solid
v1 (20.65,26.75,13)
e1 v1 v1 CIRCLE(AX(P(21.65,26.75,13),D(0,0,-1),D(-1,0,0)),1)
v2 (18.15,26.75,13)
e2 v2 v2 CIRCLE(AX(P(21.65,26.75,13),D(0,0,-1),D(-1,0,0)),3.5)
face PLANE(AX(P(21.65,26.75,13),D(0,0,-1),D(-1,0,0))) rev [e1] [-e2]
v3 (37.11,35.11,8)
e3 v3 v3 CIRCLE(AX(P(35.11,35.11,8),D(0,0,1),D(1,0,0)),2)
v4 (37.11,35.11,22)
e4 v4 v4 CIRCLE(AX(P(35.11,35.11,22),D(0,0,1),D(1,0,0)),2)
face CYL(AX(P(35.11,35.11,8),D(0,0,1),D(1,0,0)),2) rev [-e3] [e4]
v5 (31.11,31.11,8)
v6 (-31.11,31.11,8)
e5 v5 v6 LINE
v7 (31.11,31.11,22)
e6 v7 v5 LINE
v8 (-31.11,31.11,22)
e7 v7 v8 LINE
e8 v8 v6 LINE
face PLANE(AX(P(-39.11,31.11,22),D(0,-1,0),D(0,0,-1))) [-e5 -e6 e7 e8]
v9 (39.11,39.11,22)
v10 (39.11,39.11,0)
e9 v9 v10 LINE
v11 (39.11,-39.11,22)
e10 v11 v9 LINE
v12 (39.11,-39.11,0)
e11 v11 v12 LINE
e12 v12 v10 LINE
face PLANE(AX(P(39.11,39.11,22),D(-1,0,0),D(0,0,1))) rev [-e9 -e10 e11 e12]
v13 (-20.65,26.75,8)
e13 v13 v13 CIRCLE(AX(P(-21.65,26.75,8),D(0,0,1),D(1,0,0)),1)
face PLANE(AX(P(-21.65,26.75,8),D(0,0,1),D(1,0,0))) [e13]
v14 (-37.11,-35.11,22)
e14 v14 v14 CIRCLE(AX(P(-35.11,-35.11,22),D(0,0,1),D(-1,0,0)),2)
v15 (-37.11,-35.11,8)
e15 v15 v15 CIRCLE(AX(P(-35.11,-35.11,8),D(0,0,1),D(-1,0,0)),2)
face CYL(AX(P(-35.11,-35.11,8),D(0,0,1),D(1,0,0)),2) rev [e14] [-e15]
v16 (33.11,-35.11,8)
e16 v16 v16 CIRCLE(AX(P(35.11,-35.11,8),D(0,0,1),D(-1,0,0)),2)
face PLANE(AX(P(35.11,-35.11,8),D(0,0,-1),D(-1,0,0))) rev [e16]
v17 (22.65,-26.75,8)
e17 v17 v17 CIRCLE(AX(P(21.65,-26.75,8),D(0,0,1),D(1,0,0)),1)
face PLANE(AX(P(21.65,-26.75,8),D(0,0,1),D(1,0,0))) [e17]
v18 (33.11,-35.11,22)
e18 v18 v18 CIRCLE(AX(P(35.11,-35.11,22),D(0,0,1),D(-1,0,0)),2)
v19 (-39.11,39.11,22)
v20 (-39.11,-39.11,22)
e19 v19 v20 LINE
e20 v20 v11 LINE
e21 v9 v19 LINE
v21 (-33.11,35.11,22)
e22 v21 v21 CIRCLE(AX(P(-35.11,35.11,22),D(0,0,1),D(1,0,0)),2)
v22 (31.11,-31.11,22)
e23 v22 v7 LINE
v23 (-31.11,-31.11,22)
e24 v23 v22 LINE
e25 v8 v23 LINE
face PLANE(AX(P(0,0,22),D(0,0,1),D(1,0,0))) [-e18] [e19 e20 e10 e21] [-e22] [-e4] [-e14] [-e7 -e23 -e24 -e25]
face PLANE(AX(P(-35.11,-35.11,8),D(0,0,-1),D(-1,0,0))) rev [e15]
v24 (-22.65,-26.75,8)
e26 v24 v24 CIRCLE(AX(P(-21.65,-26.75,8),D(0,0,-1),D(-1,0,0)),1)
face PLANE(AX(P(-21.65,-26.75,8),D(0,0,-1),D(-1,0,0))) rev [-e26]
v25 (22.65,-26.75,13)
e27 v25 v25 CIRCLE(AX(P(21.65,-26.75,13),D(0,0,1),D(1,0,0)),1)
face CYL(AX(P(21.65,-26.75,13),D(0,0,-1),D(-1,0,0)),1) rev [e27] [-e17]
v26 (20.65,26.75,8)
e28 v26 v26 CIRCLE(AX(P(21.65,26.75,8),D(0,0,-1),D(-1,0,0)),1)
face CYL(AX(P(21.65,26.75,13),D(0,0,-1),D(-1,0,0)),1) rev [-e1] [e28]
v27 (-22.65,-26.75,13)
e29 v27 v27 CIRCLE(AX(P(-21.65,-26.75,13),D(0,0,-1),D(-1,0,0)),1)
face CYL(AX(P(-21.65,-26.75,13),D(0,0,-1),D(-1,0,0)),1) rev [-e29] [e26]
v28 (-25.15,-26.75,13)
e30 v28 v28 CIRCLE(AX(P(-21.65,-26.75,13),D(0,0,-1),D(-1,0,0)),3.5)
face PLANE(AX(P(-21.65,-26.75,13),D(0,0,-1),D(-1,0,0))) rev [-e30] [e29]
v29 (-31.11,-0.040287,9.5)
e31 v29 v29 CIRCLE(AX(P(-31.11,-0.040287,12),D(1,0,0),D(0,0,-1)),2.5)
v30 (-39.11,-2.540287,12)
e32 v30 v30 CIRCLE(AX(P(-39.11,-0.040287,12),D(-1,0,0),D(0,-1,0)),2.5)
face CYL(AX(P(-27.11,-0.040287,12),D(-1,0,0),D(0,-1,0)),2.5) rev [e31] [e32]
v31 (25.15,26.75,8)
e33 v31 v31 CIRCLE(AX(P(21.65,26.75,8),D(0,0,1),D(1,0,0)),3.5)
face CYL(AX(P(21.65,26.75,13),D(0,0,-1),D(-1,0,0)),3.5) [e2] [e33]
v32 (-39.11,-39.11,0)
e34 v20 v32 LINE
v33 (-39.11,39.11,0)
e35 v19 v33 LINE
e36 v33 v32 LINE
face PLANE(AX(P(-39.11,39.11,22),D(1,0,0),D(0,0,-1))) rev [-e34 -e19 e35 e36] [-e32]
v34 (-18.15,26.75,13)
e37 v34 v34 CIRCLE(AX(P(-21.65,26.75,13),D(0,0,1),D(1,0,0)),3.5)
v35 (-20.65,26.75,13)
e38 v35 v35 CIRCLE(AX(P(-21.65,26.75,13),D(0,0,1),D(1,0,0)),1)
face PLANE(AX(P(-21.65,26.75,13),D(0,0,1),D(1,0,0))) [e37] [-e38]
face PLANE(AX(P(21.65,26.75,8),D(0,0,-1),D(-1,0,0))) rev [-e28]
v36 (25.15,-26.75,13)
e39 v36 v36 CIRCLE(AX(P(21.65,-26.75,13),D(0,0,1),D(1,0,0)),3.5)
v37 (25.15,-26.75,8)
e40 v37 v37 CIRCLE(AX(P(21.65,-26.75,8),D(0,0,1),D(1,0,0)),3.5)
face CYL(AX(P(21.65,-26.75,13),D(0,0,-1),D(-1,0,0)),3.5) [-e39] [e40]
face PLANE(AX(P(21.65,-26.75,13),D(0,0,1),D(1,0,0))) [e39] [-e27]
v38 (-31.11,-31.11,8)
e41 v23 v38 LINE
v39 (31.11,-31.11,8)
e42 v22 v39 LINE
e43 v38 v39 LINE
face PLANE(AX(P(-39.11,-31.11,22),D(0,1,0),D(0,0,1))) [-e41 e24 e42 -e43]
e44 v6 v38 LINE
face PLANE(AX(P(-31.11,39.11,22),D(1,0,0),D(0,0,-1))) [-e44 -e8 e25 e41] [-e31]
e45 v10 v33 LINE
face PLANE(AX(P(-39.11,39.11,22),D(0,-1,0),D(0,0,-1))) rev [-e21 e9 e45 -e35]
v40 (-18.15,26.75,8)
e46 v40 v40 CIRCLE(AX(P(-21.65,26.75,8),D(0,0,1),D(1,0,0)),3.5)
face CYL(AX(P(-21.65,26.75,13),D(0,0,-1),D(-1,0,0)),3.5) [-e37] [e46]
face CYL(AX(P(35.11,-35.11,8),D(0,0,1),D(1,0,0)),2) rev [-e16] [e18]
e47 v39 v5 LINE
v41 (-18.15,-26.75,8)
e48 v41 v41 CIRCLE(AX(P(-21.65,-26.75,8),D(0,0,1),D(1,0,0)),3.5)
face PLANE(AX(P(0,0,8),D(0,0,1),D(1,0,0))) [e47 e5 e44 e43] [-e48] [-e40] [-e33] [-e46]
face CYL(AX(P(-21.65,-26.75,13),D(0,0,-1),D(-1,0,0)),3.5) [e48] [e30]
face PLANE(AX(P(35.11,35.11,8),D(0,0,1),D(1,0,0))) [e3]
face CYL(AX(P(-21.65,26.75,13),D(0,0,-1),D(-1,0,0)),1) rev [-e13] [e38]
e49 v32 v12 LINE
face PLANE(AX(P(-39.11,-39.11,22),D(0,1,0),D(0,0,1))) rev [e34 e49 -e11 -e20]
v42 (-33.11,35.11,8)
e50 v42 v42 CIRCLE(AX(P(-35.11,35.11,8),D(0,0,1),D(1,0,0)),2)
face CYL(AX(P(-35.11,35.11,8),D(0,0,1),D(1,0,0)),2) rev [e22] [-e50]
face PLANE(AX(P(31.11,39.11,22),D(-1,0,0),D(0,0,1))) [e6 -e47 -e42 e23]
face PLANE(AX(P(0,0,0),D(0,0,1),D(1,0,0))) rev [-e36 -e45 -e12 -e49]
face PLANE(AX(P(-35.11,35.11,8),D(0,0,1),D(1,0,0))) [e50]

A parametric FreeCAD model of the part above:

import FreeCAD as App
import Part
import Sketcher
Q = App.Units.Quantity


def faces_at(feature, points):
    """Names of the faces that lie closest to the given points."""
    faces = feature.Shape.Faces
    near = lambda p: min(range(len(faces)), key=lambda i: faces[i].distToShape(Part.Vertex(*p))[0])
    return sorted({f"Face{near(p) + 1}" for p in points})


def add_polygon(sketch, points):
    """Adds a closed chain of lines whose ends are joined by coincident constraints."""
    first, n = sketch.GeometryCount, len(points)
    for a, b in zip(points, points[1:] + points[:1]):
        sketch.addGeometry(Part.LineSegment(App.Vector(*a, 0), App.Vector(*b, 0)), False)
    for i in range(n):
        sketch.addConstraint(Sketcher.Constraint("Coincident", first + i, 2, first + (i + 1) % n, 1))

doc = App.newDocument("Part")
body = doc.addObject("PartDesign::Body", "Body")

# Sketch on XY plane
sketch1 = doc.addObject("Sketcher::SketchObject", "Sketch")
body.addObject(sketch1)
sketch1.AttachmentSupport = (doc.XY_Plane, [""])
sketch1.MapMode = "FlatFace"
add_polygon(sketch1, [(-39, 39), (-39, -39), (39, -39), (39, 39)])  # lines 0-3
sketch1.addConstraint(Sketcher.Constraint("Vertical", 0))
sketch1.addConstraint(Sketcher.Constraint("Horizontal", 1))
sketch1.addConstraint(Sketcher.Constraint("Vertical", 2))
sketch1.addConstraint(Sketcher.Constraint("Horizontal", 3))
sketch1.addConstraint(Sketcher.Constraint("Symmetric", 0, 2, 2, 2, -1, 1))
sketch1.addConstraint(Sketcher.Constraint("Equal", 3, 0))
sketch1.addConstraint(Sketcher.Constraint("DistanceX", 1, 1, 1, 2, Q("78.22 mm")))
pad1 = doc.addObject("PartDesign::Pad", "Pad")
body.addObject(pad1)
pad1.Profile = sketch1
pad1.Length = 22
doc.recompute()

thickness = doc.addObject("PartDesign::Thickness", "Thickness")
body.addObject(thickness)
thickness.Base = (pad1, faces_at(pad1, [(0, 0, 22)]))
thickness.Value = 8
thickness.Reversed = True
thickness.Join = "Intersection"

# Sketch on XY plane
sketch2 = doc.addObject("Sketcher::SketchObject", "Sketch001")
body.addObject(sketch2)
sketch2.AttachmentSupport = (doc.XY_Plane, [""])
sketch2.MapMode = "FlatFace"
sketch2.AttachmentOffset = App.Placement(App.Vector(0, 0, 22), App.Rotation())
sketch2.addGeometry(Part.Circle(App.Vector(-35.1, 35.1, 0), App.Vector(0, 0, 1), 2), False)
sketch2.addGeometry(Part.Circle(App.Vector(35.1, -35.1, 0), App.Vector(0, 0, 1), 2), False)
sketch2.addGeometry(Part.Circle(App.Vector(35.1, 35.1, 0), App.Vector(0, 0, 1), 2), False)
sketch2.addGeometry(Part.Circle(App.Vector(-35.1, -35.1, 0), App.Vector(0, 0, 1), 2), False)
sketch2.addConstraint(Sketcher.Constraint("Equal", 0, 1))
sketch2.addConstraint(Sketcher.Constraint("Equal", 1, 2))
sketch2.addConstraint(Sketcher.Constraint("Equal", 2, 3))
sketch2.addConstraint(Sketcher.Constraint("Symmetric", 0, 3, 1, 3, -1, 1))
sketch2.addConstraint(Sketcher.Constraint("Symmetric", 2, 3, 3, 3, -1, 1))
sketch2.addConstraint(Sketcher.Constraint("Symmetric", 0, 3, 2, 3, -2))
sketch2.addConstraint(Sketcher.Constraint("Diameter", 0, Q("4 mm")))
sketch2.addConstraint(Sketcher.Constraint("DistanceX", 0, 3, -1, 1, Q("35.11 mm")))
sketch2.addConstraint(Sketcher.Constraint("DistanceY", -1, 1, 0, 3, Q("35.11 mm")))
pocket1 = doc.addObject("PartDesign::Pocket", "Pocket")
body.addObject(pocket1)
pocket1.Profile = sketch2
pocket1.Length = 14

# Sketch on XY plane
sketch3 = doc.addObject("Sketcher::SketchObject", "Sketch002")
body.addObject(sketch3)
sketch3.AttachmentSupport = (doc.XY_Plane, [""])
sketch3.MapMode = "FlatFace"
sketch3.AttachmentOffset = App.Placement(App.Vector(0, 0, 8), App.Rotation())
sketch3.addGeometry(Part.Circle(App.Vector(-21.6, 26.8, 0), App.Vector(0, 0, 1), 3.5), False)
sketch3.addGeometry(Part.Circle(App.Vector(-21.6, -26.8, 0), App.Vector(0, 0, 1), 3.5), False)
sketch3.addGeometry(Part.Circle(App.Vector(21.6, -26.8, 0), App.Vector(0, 0, 1), 3.5), False)
sketch3.addGeometry(Part.Circle(App.Vector(21.6, 26.8, 0), App.Vector(0, 0, 1), 3.5), False)
sketch3.addConstraint(Sketcher.Constraint("Equal", 0, 1))
sketch3.addConstraint(Sketcher.Constraint("Equal", 1, 2))
sketch3.addConstraint(Sketcher.Constraint("Equal", 2, 3))
sketch3.addConstraint(Sketcher.Constraint("Symmetric", 0, 3, 2, 3, -1, 1))
sketch3.addConstraint(Sketcher.Constraint("Symmetric", 1, 3, 3, 3, -1, 1))
sketch3.addConstraint(Sketcher.Constraint("Symmetric", 1, 3, 2, 3, -2))
sketch3.addConstraint(Sketcher.Constraint("Diameter", 0, Q("7 mm")))
sketch3.addConstraint(Sketcher.Constraint("DistanceY", 1, 3, 0, 3, Q("53.5 mm")))
sketch3.addConstraint(Sketcher.Constraint("DistanceX", 1, 3, 2, 3, Q("43.3 mm")))
pad2 = doc.addObject("PartDesign::Pad", "Pad001")
body.addObject(pad2)
pad2.Profile = sketch3
pad2.Length = 5

# Sketch on XY plane
sketch4 = doc.addObject("Sketcher::SketchObject", "Sketch003")
body.addObject(sketch4)
sketch4.AttachmentSupport = (doc.XY_Plane, [""])
sketch4.MapMode = "FlatFace"
sketch4.AttachmentOffset = App.Placement(App.Vector(0, 0, 8), App.Rotation())
sketch4.addGeometry(Part.Circle(App.Vector(-21.6, 26.8, 0), App.Vector(0, 0, 1), 1), False)
sketch4.addGeometry(Part.Circle(App.Vector(-21.6, -26.8, 0), App.Vector(0, 0, 1), 1), False)
sketch4.addGeometry(Part.Circle(App.Vector(21.6, -26.8, 0), App.Vector(0, 0, 1), 1), False)
sketch4.addGeometry(Part.Circle(App.Vector(21.6, 26.8, 0), App.Vector(0, 0, 1), 1), False)
sketch4.addConstraint(Sketcher.Constraint("Equal", 0, 1))
sketch4.addConstraint(Sketcher.Constraint("Equal", 1, 2))
sketch4.addConstraint(Sketcher.Constraint("Equal", 2, 3))
sketch4.addConstraint(Sketcher.Constraint("Symmetric", 0, 3, 2, 3, -1, 1))
sketch4.addConstraint(Sketcher.Constraint("Symmetric", 1, 3, 3, 3, -1, 1))
sketch4.addConstraint(Sketcher.Constraint("Symmetric", 1, 3, 2, 3, -2))
sketch4.addConstraint(Sketcher.Constraint("Diameter", 0, Q("2 mm")))
sketch4.addConstraint(Sketcher.Constraint("DistanceY", 1, 3, 0, 3, Q("53.5 mm")))
sketch4.addConstraint(Sketcher.Constraint("DistanceX", 1, 3, 2, 3, Q("43.3 mm")))
pocket2 = doc.addObject("PartDesign::Pocket", "Pocket001")
body.addObject(pocket2)
pocket2.Profile = sketch4
pocket2.Length = 5
pocket2.Reversed = True

# Sketch on YZ plane
sketch5 = doc.addObject("Sketcher::SketchObject", "Sketch004")
body.addObject(sketch5)
sketch5.AttachmentSupport = (doc.YZ_Plane, [""])
sketch5.MapMode = "FlatFace"
sketch5.AttachmentOffset = App.Placement(App.Vector(0, 0, -39.11), App.Rotation())
sketch5.addGeometry(Part.Circle(App.Vector(0, 12, 0), App.Vector(0, 0, 1), 2.5), False)
sketch5.addConstraint(Sketcher.Constraint("Diameter", 0, Q("5 mm")))
sketch5.addConstraint(Sketcher.Constraint("DistanceY", -1, 1, 0, 3, Q("12 mm")))
sketch5.addConstraint(Sketcher.Constraint("DistanceX", 0, 3, -1, 1, Q("0.040287 mm")))
pocket3 = doc.addObject("PartDesign::Pocket", "Pocket002")
body.addObject(pocket3)
pocket3.Profile = sketch5
pocket3.Length = 12
pocket3.Reversed = True

doc.recompute()
